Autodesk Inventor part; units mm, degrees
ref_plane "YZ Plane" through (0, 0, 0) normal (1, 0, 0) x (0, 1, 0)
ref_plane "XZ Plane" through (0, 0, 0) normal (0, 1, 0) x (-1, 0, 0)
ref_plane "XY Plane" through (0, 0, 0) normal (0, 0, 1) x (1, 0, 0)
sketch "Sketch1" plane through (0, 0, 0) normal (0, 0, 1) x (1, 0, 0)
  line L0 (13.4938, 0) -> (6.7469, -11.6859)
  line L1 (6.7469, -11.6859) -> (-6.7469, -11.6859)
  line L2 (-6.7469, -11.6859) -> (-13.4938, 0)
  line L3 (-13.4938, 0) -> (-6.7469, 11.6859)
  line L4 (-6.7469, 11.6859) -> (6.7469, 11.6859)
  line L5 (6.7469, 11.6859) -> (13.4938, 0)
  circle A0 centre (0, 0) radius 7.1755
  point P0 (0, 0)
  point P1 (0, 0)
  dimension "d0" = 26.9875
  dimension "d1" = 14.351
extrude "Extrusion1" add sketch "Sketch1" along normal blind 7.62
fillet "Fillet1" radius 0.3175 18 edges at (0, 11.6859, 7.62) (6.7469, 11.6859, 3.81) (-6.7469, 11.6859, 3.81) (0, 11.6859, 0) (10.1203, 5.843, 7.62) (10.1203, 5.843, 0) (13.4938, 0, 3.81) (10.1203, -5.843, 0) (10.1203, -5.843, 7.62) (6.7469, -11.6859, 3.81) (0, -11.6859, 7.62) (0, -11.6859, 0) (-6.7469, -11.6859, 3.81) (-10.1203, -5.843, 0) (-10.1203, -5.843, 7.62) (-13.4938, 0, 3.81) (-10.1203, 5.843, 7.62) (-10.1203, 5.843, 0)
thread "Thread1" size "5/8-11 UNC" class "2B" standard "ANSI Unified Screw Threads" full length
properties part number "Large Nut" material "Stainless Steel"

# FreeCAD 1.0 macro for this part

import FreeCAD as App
import Part
import Sketcher

V = App.Vector
Q = App.Units.Quantity


def edges_at(feature, points):
    """Names of the edges that pass closest to the given points."""
    edges = feature.Shape.Edges
    near = lambda p: min(range(len(edges)), key=lambda i: edges[i].distToShape(Part.Vertex(*p))[0])
    return sorted({f"Edge{near(p) + 1}" for p in points})


def add_polygon(sketch, points):
    """Adds a closed chain of lines whose ends are joined by coincident constraints."""
    first, n = sketch.GeometryCount, len(points)
    for a, b in zip(points, points[1:] + points[:1]):
        sketch.addGeometry(Part.LineSegment(App.Vector(*a, 0), App.Vector(*b, 0)), False)
    for i in range(n):
        sketch.addConstraint(Sketcher.Constraint("Coincident", first + i, 2, first + (i + 1) % n, 1))

doc = App.newDocument("Part")
params = doc.addObject("Spreadsheet::Sheet", "Params")
for row, (alias, value) in enumerate([
    ("sketch1_diameter", "0.565 in"),
    ("sketch1_width", "0.531252 in"),
    ("pad1_length", "0.3 in"),
    ("fillet_radius", "0.0125 in"),
], start=1):
    params.set(f"A{row}", alias)
    params.set(f"B{row}", "=" + value)
    params.setAlias(f"B{row}", alias)

body = doc.addObject("PartDesign::Body", "Body")

sketch1 = body.newObject("Sketcher::SketchObject", "Sketch")
sketch1.AttachmentSupport = (doc.getObject("XY_Plane"), [""])
sketch1.MapMode = "FlatFace"
add_polygon(sketch1, [(7, -12), (13, 0), (7, 12), (-7, 12), (-13, 0), (-7, -12)])
sketch1.addGeometry(Part.Circle(V(0, 0, 0), V(0, 0, 1), 7), False)
sketch1.addConstraint(Sketcher.Constraint("Horizontal", 2))
sketch1.addConstraint(Sketcher.Constraint("Horizontal", 5))
sketch1.addConstraint(Sketcher.Constraint("Coincident", 6, 3, -1, 1))
sketch1.addConstraint(Sketcher.Constraint("Symmetric", 0, 2, 3, 2, -1, 1))
sketch1.addConstraint(Sketcher.Constraint("Symmetric", 1, 2, 4, 2, -1, 1))
sketch1.addConstraint(Sketcher.Constraint("PointOnObject", 0, 2, -1))
sketch1.addConstraint(Sketcher.Constraint("Parallel", 0, 3))
sketch1.addConstraint(Sketcher.Constraint("Vertical", 2, 2, 4, 2))
sketch1.addConstraint(Sketcher.Constraint("Diameter", 6, Q("0.565 in")))
sketch1.addConstraint(Sketcher.Constraint("Angle", 0, Q("59.9998 deg")))
sketch1.addConstraint(Sketcher.Constraint("DistanceX", 3, 2, 0, 2, Q("1.0625 in")))
sketch1.addConstraint(Sketcher.Constraint("DistanceX", 2, 2, 2, 1, Q("0.531252 in")))
sketch1.setExpression("Constraints[14]", "Params.sketch1_diameter")
sketch1.setExpression("Constraints[17]", "Params.sketch1_width")
pad1 = body.newObject("PartDesign::Pad", "Pad")
pad1.Profile = sketch1
pad1.setExpression("Length", "Params.pad1_length")
doc.recompute()

fillet = body.newObject("PartDesign::Fillet", "Fillet")
fillet.Base = (pad1, edges_at(pad1, [
    (0, 11.686, 7.62),
    (6.747, 11.686, 3.81),
    (-6.747, 11.686, 3.81),
    (0, 11.686, 0),
    (10.12, 5.843, 7.62),
    (10.12, 5.843, 0),
    (13.494, 0, 3.81),
    (10.12, -5.843, 0),
    (10.12, -5.843, 7.62),
    (6.747, -11.686, 3.81),
    (0, -11.686, 7.62),
    (0, -11.686, 0),
    (-6.747, -11.686, 3.81),
    (-10.12, -5.843, 0),
    (-10.12, -5.843, 7.62),
    (-13.494, 0, 3.81),
    (-10.12, 5.843, 7.62),
    (-10.12, 5.843, 0),
]))
fillet.setExpression("Radius", "Params.fillet_radius")

doc.recompute()
